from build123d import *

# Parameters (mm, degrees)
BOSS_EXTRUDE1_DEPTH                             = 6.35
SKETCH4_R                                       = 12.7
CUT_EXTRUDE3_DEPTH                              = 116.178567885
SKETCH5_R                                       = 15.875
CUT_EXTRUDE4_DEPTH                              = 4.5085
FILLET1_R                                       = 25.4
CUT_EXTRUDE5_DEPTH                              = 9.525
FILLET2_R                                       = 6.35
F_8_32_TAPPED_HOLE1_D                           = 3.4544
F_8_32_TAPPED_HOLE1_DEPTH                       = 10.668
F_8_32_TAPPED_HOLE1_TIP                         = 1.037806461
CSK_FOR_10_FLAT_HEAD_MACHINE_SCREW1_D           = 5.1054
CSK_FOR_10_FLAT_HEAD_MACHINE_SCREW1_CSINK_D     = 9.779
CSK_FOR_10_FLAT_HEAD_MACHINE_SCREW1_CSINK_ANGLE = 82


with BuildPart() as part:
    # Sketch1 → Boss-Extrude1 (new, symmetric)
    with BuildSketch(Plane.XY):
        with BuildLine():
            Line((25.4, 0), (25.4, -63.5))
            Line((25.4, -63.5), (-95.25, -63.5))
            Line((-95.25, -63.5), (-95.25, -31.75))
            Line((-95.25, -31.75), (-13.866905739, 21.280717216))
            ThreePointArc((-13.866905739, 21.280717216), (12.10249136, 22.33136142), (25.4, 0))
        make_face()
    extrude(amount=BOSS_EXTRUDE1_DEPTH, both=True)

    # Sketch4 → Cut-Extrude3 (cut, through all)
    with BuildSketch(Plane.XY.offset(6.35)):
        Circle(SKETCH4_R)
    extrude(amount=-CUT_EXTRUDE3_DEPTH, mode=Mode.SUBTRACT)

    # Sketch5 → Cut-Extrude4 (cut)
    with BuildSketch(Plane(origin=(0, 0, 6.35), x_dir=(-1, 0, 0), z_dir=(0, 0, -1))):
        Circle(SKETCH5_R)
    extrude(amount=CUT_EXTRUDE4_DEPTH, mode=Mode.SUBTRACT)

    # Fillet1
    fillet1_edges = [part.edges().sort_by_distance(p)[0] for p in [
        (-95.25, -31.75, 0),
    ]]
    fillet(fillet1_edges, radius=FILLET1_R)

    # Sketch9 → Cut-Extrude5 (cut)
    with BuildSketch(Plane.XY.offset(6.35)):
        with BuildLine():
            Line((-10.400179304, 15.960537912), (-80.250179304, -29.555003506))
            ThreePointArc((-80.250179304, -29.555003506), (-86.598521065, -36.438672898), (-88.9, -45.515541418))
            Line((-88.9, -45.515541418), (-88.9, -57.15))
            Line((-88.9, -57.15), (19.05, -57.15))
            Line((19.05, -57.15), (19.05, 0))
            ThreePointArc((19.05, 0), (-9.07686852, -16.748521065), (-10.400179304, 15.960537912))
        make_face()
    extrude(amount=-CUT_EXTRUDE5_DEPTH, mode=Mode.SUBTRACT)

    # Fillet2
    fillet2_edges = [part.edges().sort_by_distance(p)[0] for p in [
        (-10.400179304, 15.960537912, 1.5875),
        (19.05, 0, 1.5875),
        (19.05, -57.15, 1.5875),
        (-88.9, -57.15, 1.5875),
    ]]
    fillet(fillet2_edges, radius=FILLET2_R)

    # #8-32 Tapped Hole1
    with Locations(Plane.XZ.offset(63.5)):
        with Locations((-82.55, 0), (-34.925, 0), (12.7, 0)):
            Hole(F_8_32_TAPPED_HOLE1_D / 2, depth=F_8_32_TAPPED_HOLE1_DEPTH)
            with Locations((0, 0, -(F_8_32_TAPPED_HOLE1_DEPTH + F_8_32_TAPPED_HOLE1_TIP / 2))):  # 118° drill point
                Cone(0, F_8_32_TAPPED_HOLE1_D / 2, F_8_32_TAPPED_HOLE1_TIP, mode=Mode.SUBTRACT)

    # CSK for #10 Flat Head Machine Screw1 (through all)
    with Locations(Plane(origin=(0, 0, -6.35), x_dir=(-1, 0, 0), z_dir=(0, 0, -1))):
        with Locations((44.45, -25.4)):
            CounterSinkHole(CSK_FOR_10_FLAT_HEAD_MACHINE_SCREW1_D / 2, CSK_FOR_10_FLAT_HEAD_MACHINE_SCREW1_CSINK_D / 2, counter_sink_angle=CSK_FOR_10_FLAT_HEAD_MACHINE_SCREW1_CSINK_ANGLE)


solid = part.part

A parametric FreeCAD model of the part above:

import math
import FreeCAD as App
import Part
import Sketcher
Q = App.Units.Quantity


def edges_at(feature, points):
    """Names of the edges that pass closest to the given points."""
    edges = feature.Shape.Edges
    near = lambda p: min(range(len(edges)), key=lambda i: edges[i].distToShape(Part.Vertex(*p))[0])
    return sorted({f"Edge{near(p) + 1}" for p in points})

doc = App.newDocument("Part")
body = doc.addObject("PartDesign::Body", "Body")

sketch1 = body.newObject("Sketcher::SketchObject", "Sketch")
sketch1.AttachmentSupport = (doc.getObject("XY_Plane"), [""])
sketch1.MapMode = "FlatFace"
sketch1.addGeometry([
    Part.LineSegment(App.Vector(25, -64, 0), App.Vector(25, 0, 0)),
    Part.ArcOfCircle(Part.Circle(App.Vector(0, 0, 0), App.Vector(0, 0, 1), 25), math.radians(0), math.radians(123)),
    Part.LineSegment(App.Vector(-14, 21, 0), App.Vector(-95, -32, 0)),
    Part.LineSegment(App.Vector(-95, -32, 0), App.Vector(-95, -64, 0)),
    Part.LineSegment(App.Vector(-95, -64, 0), App.Vector(25, -64, 0)),
], False)
sketch1.addConstraint([
    Sketcher.Constraint("Tangent", 0, 2, 1, 1),
    Sketcher.Constraint("Tangent", 1, 2, 2, 1),
    Sketcher.Constraint("Coincident", 2, 2, 3, 1),
    Sketcher.Constraint("Coincident", 3, 2, 4, 1),
    Sketcher.Constraint("Coincident", 4, 2, 0, 1),
    Sketcher.Constraint("Vertical", 0),
    Sketcher.Constraint("Vertical", 3),
    Sketcher.Constraint("Horizontal", 4),
    Sketcher.Constraint("Coincident", 1, 3, -1, 1),
    Sketcher.Constraint("Radius", 1, Q("1 in")),
    Sketcher.Constraint("DistanceY", 0, 1, 0, 2, Q("2.5 in")),
    Sketcher.Constraint("DistanceX", 4, 1, 4, 2, Q("4.75 in")),
    Sketcher.Constraint("DistanceY", 3, 2, 3, 1, Q("1.25 in")),
])
pad1 = body.newObject("PartDesign::Pad", "Pad")
pad1.Profile = sketch1
pad1.Length = Q("0.5 in")
pad1.Midplane = True

sketch2 = body.newObject("Sketcher::SketchObject", "Sketch001")
sketch2.AttachmentSupport = (doc.getObject("XY_Plane"), [""])
sketch2.MapMode = "FlatFace"
sketch2.AttachmentOffset = App.Placement(App.Vector(0, 0, 0.25 * 25.4), App.Rotation())
sketch2.addGeometry(Part.Circle(App.Vector(0, 0, 0), App.Vector(0, 0, 1), 13), False)
sketch2.addConstraint([
    Sketcher.Constraint("Coincident", 0, 3, -1, 1),
    Sketcher.Constraint("Diameter", 0, Q("1 in")),
])
pocket1 = body.newObject("PartDesign::Pocket", "Pocket")
pocket1.Profile = sketch2
pocket1.Type = "ThroughAll"

sketch3 = body.newObject("Sketcher::SketchObject", "Sketch002")
sketch3.AttachmentSupport = (doc.getObject("XY_Plane"), [""])
sketch3.MapMode = "FlatFace"
sketch3.AttachmentOffset = App.Placement(App.Vector(0, 0, 0.25 * 25.4), App.Rotation())
sketch3.addGeometry(Part.Circle(App.Vector(0, 0, 0), App.Vector(0, 0, 1), 16), False)
sketch3.addConstraint([
    Sketcher.Constraint("Coincident", 0, 3, -1, 1),
    Sketcher.Constraint("Diameter", 0, Q("1.25 in")),
])
pocket2 = body.newObject("PartDesign::Pocket", "Pocket001")
pocket2.Profile = sketch3
pocket2.Length = Q("0.1775 in")
doc.recompute()

fillet = body.newObject("PartDesign::Fillet", "Fillet")
fillet.Base = (pocket2, edges_at(pocket2, [(-95.25, -31.75, 0)]))
fillet.Radius = Q("1 in")

sketch4 = body.newObject("Sketcher::SketchObject", "Sketch003")
sketch4.AttachmentSupport = (doc.getObject("XY_Plane"), [""])
sketch4.MapMode = "FlatFace"
sketch4.AttachmentOffset = App.Placement(App.Vector(0, 0, 0.25 * 25.4), App.Rotation())
sketch4.addGeometry([
    Part.LineSegment(App.Vector(-10, 16, 0), App.Vector(-80, -30, 0)),
    Part.ArcOfCircle(Part.Circle(App.Vector(-70, -46, 0), App.Vector(0, 0, 1), 19), math.radians(123), math.radians(180)),
    Part.LineSegment(App.Vector(-89, -46, 0), App.Vector(-89, -57, 0)),
    Part.LineSegment(App.Vector(-89, -57, 0), App.Vector(19, -57, 0)),
    Part.LineSegment(App.Vector(19, -57, 0), App.Vector(19, 0, 0)),
    Part.ArcOfCircle(Part.Circle(App.Vector(0, 0, 0), App.Vector(0, 0, 1), 19), math.radians(123), math.radians(360)),
], False)
sketch4.addConstraint([
    Sketcher.Constraint("Tangent", 0, 2, 1, 1),
    Sketcher.Constraint("Tangent", 1, 2, 2, 1),
    Sketcher.Constraint("Coincident", 2, 2, 3, 1),
    Sketcher.Constraint("Coincident", 3, 2, 4, 1),
    Sketcher.Constraint("Tangent", 4, 2, 5, 2),
    Sketcher.Constraint("Tangent", 5, 1, 0, 1),
    Sketcher.Constraint("Vertical", 2),
    Sketcher.Constraint("Horizontal", 3),
    Sketcher.Constraint("Vertical", 4),
    Sketcher.Constraint("Coincident", 5, 3, -1, 1),
    Sketcher.Constraint("Equal", 1, 5),
    Sketcher.Constraint("Radius", 1, Q("0.75 in")),
    Sketcher.Constraint("DistanceX", 3, 1, 3, 2, Q("4.25 in")),
    Sketcher.Constraint("DistanceY", 4, 1, 4, 2, Q("2.25 in")),
    Sketcher.Constraint("DistanceY", 2, 2, 2, 1, 11.634459),
])
pocket3 = body.newObject("PartDesign::Pocket", "Pocket002")
pocket3.Profile = sketch4
pocket3.Length = Q("0.375 in")
doc.recompute()

fillet2 = body.newObject("PartDesign::Fillet", "Fillet001")
fillet2.Base = (pocket3, edges_at(pocket3, [
    (-10.4, 15.961, 1.587),
    (19.05, 0, 1.587),
    (19.05, -57.15, 1.587),
    (-88.9, -57.15, 1.587),
]))
fillet2.Radius = Q("0.25 in")

sketch5 = body.newObject("Sketcher::SketchObject", "Sketch004")
sketch5.AttachmentSupport = (doc.getObject("XZ_Plane"), [""])
sketch5.MapMode = "FlatFace"
sketch5.AttachmentOffset = App.Placement(App.Vector(0, 0, 2.5 * 25.4), App.Rotation())
sketch5.addGeometry([
    Part.Circle(App.Vector(-82.5, 0, 0), App.Vector(0, 0, 1), 1.7),
    Part.Circle(App.Vector(-34.9, 0, 0), App.Vector(0, 0, 1), 1.7),
    Part.Circle(App.Vector(12.7, 0, 0), App.Vector(0, 0, 1), 1.7),
], False)
sketch5.addConstraint([
    Sketcher.Constraint("Equal", 0, 1),
    Sketcher.Constraint("Equal", 1, 2),
    Sketcher.Constraint("PointOnObject", 0, 3, -1),
    Sketcher.Constraint("PointOnObject", 1, 3, -1),
    Sketcher.Constraint("PointOnObject", 2, 3, -1),
    Sketcher.Constraint("Diameter", 0, Q("0.136 in")),
    Sketcher.Constraint("DistanceX", -1, 1, 2, 3, Q("0.5 in")),
    Sketcher.Constraint("DistanceX", 0, 3, -1, 1, Q("3.25 in")),
    Sketcher.Constraint("DistanceX", 1, 3, -1, 1, Q("1.375 in")),
])
doc.recompute()
hole = body.newObject("PartDesign::Hole", "Hole")
hole.Profile = sketch5
hole.ThreadType = "None"
hole.Diameter = Q("0.136 in")
hole.DepthType = "Dimension"
hole.Depth = Q("0.42 in")
hole.DrillPoint = "Angled"
hole.DrillPointAngle = 118

sketch6 = body.newObject("Sketcher::SketchObject", "Sketch005")
sketch6.AttachmentSupport = (doc.getObject("XY_Plane"), [""])
sketch6.MapMode = "FlatFace"
sketch6.AttachmentOffset = App.Placement(App.Vector(0, 0, -0.25 * 25.4), App.Rotation())
sketch6.addGeometry(Part.Circle(App.Vector(-44.5, -25.4, 0), App.Vector(0, 0, 1), 2.6), False)
sketch6.addConstraint([
    Sketcher.Constraint("Diameter", 0, Q("0.201 in")),
    Sketcher.Constraint("DistanceY", 0, 3, -1, 1, Q("1 in")),
    Sketcher.Constraint("DistanceX", 0, 3, -1, 1, Q("1.75 in")),
])
doc.recompute()
hole2 = body.newObject("PartDesign::Hole", "Hole001")
hole2.Profile = sketch6
hole2.ThreadType = "None"
hole2.Diameter = Q("0.201 in")
hole2.DepthType = "ThroughAll"
hole2.HoleCutType = "Countersink"
hole2.HoleCutDiameter = Q("0.385 in")
hole2.HoleCutCountersinkAngle = 82
hole2.Reversed = True

doc.recompute()
